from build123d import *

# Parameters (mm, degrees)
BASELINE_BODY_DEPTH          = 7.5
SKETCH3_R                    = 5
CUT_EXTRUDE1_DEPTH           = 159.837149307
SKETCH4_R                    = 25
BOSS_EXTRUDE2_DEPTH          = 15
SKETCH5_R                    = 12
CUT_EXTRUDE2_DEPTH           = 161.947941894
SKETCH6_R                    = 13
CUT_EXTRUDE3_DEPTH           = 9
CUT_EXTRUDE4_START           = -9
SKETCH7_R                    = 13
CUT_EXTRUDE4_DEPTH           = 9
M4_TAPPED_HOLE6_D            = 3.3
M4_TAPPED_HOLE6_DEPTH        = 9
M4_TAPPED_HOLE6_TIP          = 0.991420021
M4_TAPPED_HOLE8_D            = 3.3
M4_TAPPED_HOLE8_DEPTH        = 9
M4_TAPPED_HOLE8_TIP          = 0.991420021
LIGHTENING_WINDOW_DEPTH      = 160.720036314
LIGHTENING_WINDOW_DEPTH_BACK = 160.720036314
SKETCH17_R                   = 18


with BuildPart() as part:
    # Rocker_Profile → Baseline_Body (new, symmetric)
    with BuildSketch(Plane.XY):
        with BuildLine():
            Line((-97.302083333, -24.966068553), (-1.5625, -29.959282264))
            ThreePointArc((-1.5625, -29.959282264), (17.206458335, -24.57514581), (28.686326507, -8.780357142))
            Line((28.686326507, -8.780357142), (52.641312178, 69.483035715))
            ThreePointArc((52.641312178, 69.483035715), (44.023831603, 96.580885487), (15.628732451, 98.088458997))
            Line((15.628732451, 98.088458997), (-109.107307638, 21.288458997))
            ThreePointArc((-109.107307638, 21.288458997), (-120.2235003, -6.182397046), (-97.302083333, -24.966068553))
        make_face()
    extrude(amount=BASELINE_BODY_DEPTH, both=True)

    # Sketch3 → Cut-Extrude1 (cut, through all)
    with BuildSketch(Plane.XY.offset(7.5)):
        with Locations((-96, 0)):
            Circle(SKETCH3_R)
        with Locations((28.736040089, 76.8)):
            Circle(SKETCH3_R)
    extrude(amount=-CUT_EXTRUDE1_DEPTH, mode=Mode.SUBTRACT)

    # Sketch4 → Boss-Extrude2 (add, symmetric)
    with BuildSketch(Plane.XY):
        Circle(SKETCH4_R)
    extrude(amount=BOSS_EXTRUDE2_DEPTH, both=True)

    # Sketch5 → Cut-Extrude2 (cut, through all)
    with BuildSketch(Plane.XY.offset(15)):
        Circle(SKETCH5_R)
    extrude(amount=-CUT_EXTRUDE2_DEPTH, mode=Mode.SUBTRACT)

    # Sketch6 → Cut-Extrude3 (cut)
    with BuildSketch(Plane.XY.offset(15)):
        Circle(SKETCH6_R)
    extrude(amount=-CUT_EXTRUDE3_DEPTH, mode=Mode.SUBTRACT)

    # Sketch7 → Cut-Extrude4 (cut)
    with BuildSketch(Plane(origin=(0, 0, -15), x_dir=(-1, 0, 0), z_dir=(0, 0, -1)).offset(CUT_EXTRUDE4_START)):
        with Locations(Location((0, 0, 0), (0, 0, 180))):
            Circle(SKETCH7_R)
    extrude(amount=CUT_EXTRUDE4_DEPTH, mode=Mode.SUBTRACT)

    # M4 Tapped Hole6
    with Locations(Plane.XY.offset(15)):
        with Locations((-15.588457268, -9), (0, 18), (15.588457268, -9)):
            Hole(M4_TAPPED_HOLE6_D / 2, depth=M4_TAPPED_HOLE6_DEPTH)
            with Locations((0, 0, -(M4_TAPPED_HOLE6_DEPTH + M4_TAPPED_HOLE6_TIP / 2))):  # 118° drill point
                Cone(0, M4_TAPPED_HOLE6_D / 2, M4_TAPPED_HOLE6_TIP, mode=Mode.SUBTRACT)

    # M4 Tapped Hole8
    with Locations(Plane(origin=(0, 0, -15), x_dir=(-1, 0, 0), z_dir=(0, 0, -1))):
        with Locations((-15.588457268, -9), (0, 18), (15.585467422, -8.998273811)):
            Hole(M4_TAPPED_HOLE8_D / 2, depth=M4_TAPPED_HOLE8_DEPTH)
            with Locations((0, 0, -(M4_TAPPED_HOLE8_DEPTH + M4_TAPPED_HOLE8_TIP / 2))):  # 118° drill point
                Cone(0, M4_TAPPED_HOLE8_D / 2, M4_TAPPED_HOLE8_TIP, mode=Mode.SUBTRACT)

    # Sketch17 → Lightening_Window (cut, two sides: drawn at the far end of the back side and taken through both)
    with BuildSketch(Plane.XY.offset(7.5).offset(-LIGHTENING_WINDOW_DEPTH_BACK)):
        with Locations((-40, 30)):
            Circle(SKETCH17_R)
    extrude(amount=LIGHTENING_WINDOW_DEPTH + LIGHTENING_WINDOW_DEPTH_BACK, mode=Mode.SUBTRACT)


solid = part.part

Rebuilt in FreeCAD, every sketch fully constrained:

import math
import FreeCAD as App
import Part
import Sketcher
from FreeCAD import Vector
Q = App.Units.Quantity

doc = App.newDocument("Part")
params = doc.addObject("Spreadsheet::Sheet", "Params")
for row, (alias, value) in enumerate([
    ("sketch1_radius", "30 mm"),
    ("sketch1_radius2", "25 mm"),
    ("pad1_length", "15 mm"),
    ("sketch2_diameter", "10 mm"),
    ("sketch3_diameter", "50 mm"),
    ("pad2_length", "30 mm"),
    ("sketch4_diameter", "24 mm"),
    ("sketch5_diameter", "26 mm"),
    ("pocket3_length", "9 mm"),
    ("sketch6_diameter", "26 mm"),
    ("pocket4_length", "9 mm"),
    ("sketch7_diameter", "3.3 mm"),
    ("hole_diameter", "3.3 mm"),
    ("hole_depth", "9 mm"),
    ("sketch8_diameter", "3.3 mm"),
    ("hole2_diameter", "3.3 mm"),
    ("hole2_depth", "9 mm"),
    ("sketch9_diameter", "36 mm"),
], start=1):
    params.set(f"A{row}", alias)
    params.set(f"B{row}", "=" + value)
    params.setAlias(f"B{row}", alias)

body = doc.addObject("PartDesign::Body", "Body")

# Sketch on XY plane
sketch1 = doc.addObject("Sketcher::SketchObject", "Sketch")
body.addObject(sketch1)
sketch1.AttachmentSupport = (doc.XY_Plane, [""])
sketch1.MapMode = "FlatFace"
sketch1.addGeometry(Part.LineSegment(Vector(-97, -25, 0), Vector(-2, -30, 0)), False)
sketch1.addGeometry(Part.ArcOfCircle(Part.Circle(Vector(0, 0, 0), Vector(0, 0, 1), 30), math.radians(-93), math.radians(-17)), False)
sketch1.addGeometry(Part.LineSegment(Vector(29, -9, 0), Vector(53, 69, 0)), False)
sketch1.addGeometry(Part.ArcOfCircle(Part.Circle(Vector(29, 77, 0), Vector(0, 0, 1), 25), math.radians(-17), math.radians(122)), False)
sketch1.addGeometry(Part.LineSegment(Vector(16, 98, 0), Vector(-109, 21, 0)), False)
sketch1.addGeometry(Part.ArcOfCircle(Part.Circle(Vector(-96, 0, 0), Vector(0, 0, 1), 25), math.radians(122), math.radians(267)), False)
sketch1.addConstraint(Sketcher.Constraint("Tangent", 0, 2, 1, 1))
sketch1.addConstraint(Sketcher.Constraint("Tangent", 1, 2, 2, 1))
sketch1.addConstraint(Sketcher.Constraint("Tangent", 2, 2, 3, 1))
sketch1.addConstraint(Sketcher.Constraint("Tangent", 3, 2, 4, 1))
sketch1.addConstraint(Sketcher.Constraint("Tangent", 4, 2, 5, 1))
sketch1.addConstraint(Sketcher.Constraint("Tangent", 5, 2, 0, 1))
sketch1.addConstraint(Sketcher.Constraint("Coincident", 1, 3, -1, 1))
sketch1.addConstraint(Sketcher.Constraint("Equal", 3, 5))
sketch1.addConstraint(Sketcher.Constraint("PointOnObject", 5, 3, -1))
sketch1.addConstraint(Sketcher.Constraint("Radius", 1, Q("30 mm")))
sketch1.addConstraint(Sketcher.Constraint("Radius", 3, Q("25 mm")))
sketch1.addConstraint(Sketcher.Constraint("DistanceX", 5, 3, -1, 1, Q("96 mm")))
sketch1.addConstraint(Sketcher.Constraint("DistanceY", -1, 1, 3, 3, Q("76.8 mm")))
sketch1.addConstraint(Sketcher.Constraint("Distance", 2, Q("81.847419 mm")))
sketch1.setExpression("Constraints[9]", "Params.sketch1_radius")
sketch1.setExpression("Constraints[10]", "Params.sketch1_radius2")
pad1 = doc.addObject("PartDesign::Pad", "Pad")
body.addObject(pad1)
pad1.Profile = sketch1
pad1.setExpression("Length", "Params.pad1_length")
pad1.Midplane = True

# Sketch on XY plane
sketch2 = doc.addObject("Sketcher::SketchObject", "Sketch001")
body.addObject(sketch2)
sketch2.AttachmentSupport = (doc.XY_Plane, [""])
sketch2.MapMode = "FlatFace"
sketch2.AttachmentOffset = App.Placement(Vector(0, 0, 7.5), App.Rotation())
sketch2.addGeometry(Part.Circle(Vector(-96, 0, 0), Vector(0, 0, 1), 5), False)
sketch2.addGeometry(Part.Circle(Vector(29, 77, 0), Vector(0, 0, 1), 5), False)
sketch2.addConstraint(Sketcher.Constraint("Equal", 0, 1))
sketch2.addConstraint(Sketcher.Constraint("PointOnObject", 0, 3, -1))
sketch2.addConstraint(Sketcher.Constraint("Diameter", 0, Q("10 mm")))
sketch2.addConstraint(Sketcher.Constraint("DistanceX", 0, 3, -1, 1, Q("96 mm")))
sketch2.addConstraint(Sketcher.Constraint("DistanceY", -1, 1, 1, 3, Q("76.8 mm")))
sketch2.addConstraint(Sketcher.Constraint("DistanceX", -1, 1, 1, 3, Q("28.73604 mm")))
sketch2.setExpression("Constraints[2]", "Params.sketch2_diameter")
pocket1 = doc.addObject("PartDesign::Pocket", "Pocket")
body.addObject(pocket1)
pocket1.Profile = sketch2
pocket1.Type = "ThroughAll"

# Sketch on XY plane
sketch3 = doc.addObject("Sketcher::SketchObject", "Sketch002")
body.addObject(sketch3)
sketch3.AttachmentSupport = (doc.XY_Plane, [""])
sketch3.MapMode = "FlatFace"
sketch3.addGeometry(Part.Circle(Vector(0, 0, 0), Vector(0, 0, 1), 25), False)
sketch3.addConstraint(Sketcher.Constraint("Coincident", 0, 3, -1, 1))
sketch3.addConstraint(Sketcher.Constraint("Diameter", 0, Q("50 mm")))
sketch3.setExpression("Constraints[1]", "Params.sketch3_diameter")
pad2 = doc.addObject("PartDesign::Pad", "Pad001")
body.addObject(pad2)
pad2.Profile = sketch3
pad2.setExpression("Length", "Params.pad2_length")
pad2.Midplane = True

# Sketch on XY plane
sketch4 = doc.addObject("Sketcher::SketchObject", "Sketch003")
body.addObject(sketch4)
sketch4.AttachmentSupport = (doc.XY_Plane, [""])
sketch4.MapMode = "FlatFace"
sketch4.AttachmentOffset = App.Placement(Vector(0, 0, 15), App.Rotation())
sketch4.addGeometry(Part.Circle(Vector(0, 0, 0), Vector(0, 0, 1), 12), False)
sketch4.addConstraint(Sketcher.Constraint("Coincident", 0, 3, -1, 1))
sketch4.addConstraint(Sketcher.Constraint("Diameter", 0, Q("24 mm")))
sketch4.setExpression("Constraints[1]", "Params.sketch4_diameter")
pocket2 = doc.addObject("PartDesign::Pocket", "Pocket001")
body.addObject(pocket2)
pocket2.Profile = sketch4
pocket2.Type = "ThroughAll"

# Sketch on XY plane
sketch5 = doc.addObject("Sketcher::SketchObject", "Sketch004")
body.addObject(sketch5)
sketch5.AttachmentSupport = (doc.XY_Plane, [""])
sketch5.MapMode = "FlatFace"
sketch5.AttachmentOffset = App.Placement(Vector(0, 0, 15), App.Rotation())
sketch5.addGeometry(Part.Circle(Vector(0, 0, 0), Vector(0, 0, 1), 13), False)
sketch5.addConstraint(Sketcher.Constraint("Coincident", 0, 3, -1, 1))
sketch5.addConstraint(Sketcher.Constraint("Diameter", 0, Q("26 mm")))
sketch5.setExpression("Constraints[1]", "Params.sketch5_diameter")
pocket3 = doc.addObject("PartDesign::Pocket", "Pocket002")
body.addObject(pocket3)
pocket3.Profile = sketch5
pocket3.setExpression("Length", "Params.pocket3_length")

# Sketch on XY plane
sketch6 = doc.addObject("Sketcher::SketchObject", "Sketch005")
body.addObject(sketch6)
sketch6.AttachmentSupport = (doc.XY_Plane, [""])
sketch6.MapMode = "FlatFace"
sketch6.AttachmentOffset = App.Placement(Vector(0, 0, -6), App.Rotation())
sketch6.addGeometry(Part.Circle(Vector(0, 0, 0), Vector(0, 0, 1), 13), False)
sketch6.addConstraint(Sketcher.Constraint("Coincident", 0, 3, -1, 1))
sketch6.addConstraint(Sketcher.Constraint("Diameter", 0, Q("26 mm")))
sketch6.setExpression("Constraints[1]", "Params.sketch6_diameter")
pocket4 = doc.addObject("PartDesign::Pocket", "Pocket003")
body.addObject(pocket4)
pocket4.Profile = sketch6
pocket4.setExpression("Length", "Params.pocket4_length")

# Sketch on XY plane
sketch7 = doc.addObject("Sketcher::SketchObject", "Sketch006")
body.addObject(sketch7)
sketch7.AttachmentSupport = (doc.XY_Plane, [""])
sketch7.MapMode = "FlatFace"
sketch7.AttachmentOffset = App.Placement(Vector(0, 0, 15), App.Rotation())
sketch7.addGeometry(Part.Circle(Vector(-15.6, -9, 0), Vector(0, 0, 1), 1.6), False)
sketch7.addGeometry(Part.Circle(Vector(0, 18, 0), Vector(0, 0, 1), 1.6), False)
sketch7.addGeometry(Part.Circle(Vector(15.6, -9, 0), Vector(0, 0, 1), 1.6), False)
sketch7.addConstraint(Sketcher.Constraint("Equal", 0, 1))
sketch7.addConstraint(Sketcher.Constraint("Equal", 1, 2))
sketch7.addConstraint(Sketcher.Constraint("Symmetric", 0, 3, 2, 3, -2))
sketch7.addConstraint(Sketcher.Constraint("PointOnObject", 1, 3, -2))
sketch7.addConstraint(Sketcher.Constraint("Diameter", 0, Q("3.3 mm")))
sketch7.addConstraint(Sketcher.Constraint("DistanceY", 0, 3, -1, 1, Q("9 mm")))
sketch7.addConstraint(Sketcher.Constraint("DistanceY", -1, 1, 1, 3, Q("18 mm")))
sketch7.addConstraint(Sketcher.Constraint("DistanceX", 0, 3, -1, 1, Q("15.588457 mm")))
sketch7.setExpression("Constraints[4]", "Params.sketch7_diameter")
doc.recompute()
hole = doc.addObject("PartDesign::Hole", "Hole")
body.addObject(hole)
hole.Profile = sketch7
hole.ThreadType = "None"
hole.setExpression("Diameter", "Params.hole_diameter")
hole.DepthType = "Dimension"
hole.setExpression("Depth", "Params.hole_depth")
hole.DrillPoint = "Angled"
hole.DrillPointAngle = 118

# Sketch on XY plane
sketch8 = doc.addObject("Sketcher::SketchObject", "Sketch007")
body.addObject(sketch8)
sketch8.AttachmentSupport = (doc.XY_Plane, [""])
sketch8.MapMode = "FlatFace"
sketch8.AttachmentOffset = App.Placement(Vector(0, 0, -15), App.Rotation())
sketch8.addGeometry(Part.Circle(Vector(15.6, -9, 0), Vector(0, 0, 1), 1.6), False)
sketch8.addGeometry(Part.Circle(Vector(0, 18, 0), Vector(0, 0, 1), 1.6), False)
sketch8.addGeometry(Part.Circle(Vector(-15.6, -9, 0), Vector(0, 0, 1), 1.6), False)
sketch8.addConstraint(Sketcher.Constraint("Equal", 0, 1))
sketch8.addConstraint(Sketcher.Constraint("Equal", 1, 2))
sketch8.addConstraint(Sketcher.Constraint("PointOnObject", 1, 3, -2))
sketch8.addConstraint(Sketcher.Constraint("Diameter", 0, Q("3.3 mm")))
sketch8.addConstraint(Sketcher.Constraint("DistanceY", 0, 3, -1, 1, Q("9 mm")))
sketch8.addConstraint(Sketcher.Constraint("DistanceY", -1, 1, 1, 3, Q("18 mm")))
sketch8.addConstraint(Sketcher.Constraint("DistanceX", -1, 1, 0, 3, Q("15.588457 mm")))
sketch8.addConstraint(Sketcher.Constraint("DistanceX", 2, 3, -1, 1, Q("15.585467 mm")))
sketch8.addConstraint(Sketcher.Constraint("DistanceY", 2, 3, -1, 1, Q("8.998274 mm")))
sketch8.setExpression("Constraints[3]", "Params.sketch8_diameter")
doc.recompute()
hole2 = doc.addObject("PartDesign::Hole", "Hole001")
body.addObject(hole2)
hole2.Profile = sketch8
hole2.ThreadType = "None"
hole2.setExpression("Diameter", "Params.hole2_diameter")
hole2.DepthType = "Dimension"
hole2.setExpression("Depth", "Params.hole2_depth")
hole2.DrillPoint = "Angled"
hole2.DrillPointAngle = 118
hole2.Reversed = True

# Sketch on XY plane
sketch9 = doc.addObject("Sketcher::SketchObject", "Sketch008")
body.addObject(sketch9)
sketch9.AttachmentSupport = (doc.XY_Plane, [""])
sketch9.MapMode = "FlatFace"
sketch9.AttachmentOffset = App.Placement(Vector(0, 0, 7.5), App.Rotation())
sketch9.addGeometry(Part.Circle(Vector(-40, 30, 0), Vector(0, 0, 1), 18), False)
sketch9.addConstraint(Sketcher.Constraint("Diameter", 0, Q("36 mm")))
sketch9.addConstraint(Sketcher.Constraint("DistanceX", 0, 3, -1, 1, Q("40 mm")))
sketch9.addConstraint(Sketcher.Constraint("DistanceY", -1, 1, 0, 3, Q("30 mm")))
sketch9.setExpression("Constraints[0]", "Params.sketch9_diameter")
pocket5 = doc.addObject("PartDesign::Pocket", "Pocket004")
body.addObject(pocket5)
pocket5.Profile = sketch9
pocket5.Type = "ThroughAll"
pocket5.Midplane = True

doc.recompute()
